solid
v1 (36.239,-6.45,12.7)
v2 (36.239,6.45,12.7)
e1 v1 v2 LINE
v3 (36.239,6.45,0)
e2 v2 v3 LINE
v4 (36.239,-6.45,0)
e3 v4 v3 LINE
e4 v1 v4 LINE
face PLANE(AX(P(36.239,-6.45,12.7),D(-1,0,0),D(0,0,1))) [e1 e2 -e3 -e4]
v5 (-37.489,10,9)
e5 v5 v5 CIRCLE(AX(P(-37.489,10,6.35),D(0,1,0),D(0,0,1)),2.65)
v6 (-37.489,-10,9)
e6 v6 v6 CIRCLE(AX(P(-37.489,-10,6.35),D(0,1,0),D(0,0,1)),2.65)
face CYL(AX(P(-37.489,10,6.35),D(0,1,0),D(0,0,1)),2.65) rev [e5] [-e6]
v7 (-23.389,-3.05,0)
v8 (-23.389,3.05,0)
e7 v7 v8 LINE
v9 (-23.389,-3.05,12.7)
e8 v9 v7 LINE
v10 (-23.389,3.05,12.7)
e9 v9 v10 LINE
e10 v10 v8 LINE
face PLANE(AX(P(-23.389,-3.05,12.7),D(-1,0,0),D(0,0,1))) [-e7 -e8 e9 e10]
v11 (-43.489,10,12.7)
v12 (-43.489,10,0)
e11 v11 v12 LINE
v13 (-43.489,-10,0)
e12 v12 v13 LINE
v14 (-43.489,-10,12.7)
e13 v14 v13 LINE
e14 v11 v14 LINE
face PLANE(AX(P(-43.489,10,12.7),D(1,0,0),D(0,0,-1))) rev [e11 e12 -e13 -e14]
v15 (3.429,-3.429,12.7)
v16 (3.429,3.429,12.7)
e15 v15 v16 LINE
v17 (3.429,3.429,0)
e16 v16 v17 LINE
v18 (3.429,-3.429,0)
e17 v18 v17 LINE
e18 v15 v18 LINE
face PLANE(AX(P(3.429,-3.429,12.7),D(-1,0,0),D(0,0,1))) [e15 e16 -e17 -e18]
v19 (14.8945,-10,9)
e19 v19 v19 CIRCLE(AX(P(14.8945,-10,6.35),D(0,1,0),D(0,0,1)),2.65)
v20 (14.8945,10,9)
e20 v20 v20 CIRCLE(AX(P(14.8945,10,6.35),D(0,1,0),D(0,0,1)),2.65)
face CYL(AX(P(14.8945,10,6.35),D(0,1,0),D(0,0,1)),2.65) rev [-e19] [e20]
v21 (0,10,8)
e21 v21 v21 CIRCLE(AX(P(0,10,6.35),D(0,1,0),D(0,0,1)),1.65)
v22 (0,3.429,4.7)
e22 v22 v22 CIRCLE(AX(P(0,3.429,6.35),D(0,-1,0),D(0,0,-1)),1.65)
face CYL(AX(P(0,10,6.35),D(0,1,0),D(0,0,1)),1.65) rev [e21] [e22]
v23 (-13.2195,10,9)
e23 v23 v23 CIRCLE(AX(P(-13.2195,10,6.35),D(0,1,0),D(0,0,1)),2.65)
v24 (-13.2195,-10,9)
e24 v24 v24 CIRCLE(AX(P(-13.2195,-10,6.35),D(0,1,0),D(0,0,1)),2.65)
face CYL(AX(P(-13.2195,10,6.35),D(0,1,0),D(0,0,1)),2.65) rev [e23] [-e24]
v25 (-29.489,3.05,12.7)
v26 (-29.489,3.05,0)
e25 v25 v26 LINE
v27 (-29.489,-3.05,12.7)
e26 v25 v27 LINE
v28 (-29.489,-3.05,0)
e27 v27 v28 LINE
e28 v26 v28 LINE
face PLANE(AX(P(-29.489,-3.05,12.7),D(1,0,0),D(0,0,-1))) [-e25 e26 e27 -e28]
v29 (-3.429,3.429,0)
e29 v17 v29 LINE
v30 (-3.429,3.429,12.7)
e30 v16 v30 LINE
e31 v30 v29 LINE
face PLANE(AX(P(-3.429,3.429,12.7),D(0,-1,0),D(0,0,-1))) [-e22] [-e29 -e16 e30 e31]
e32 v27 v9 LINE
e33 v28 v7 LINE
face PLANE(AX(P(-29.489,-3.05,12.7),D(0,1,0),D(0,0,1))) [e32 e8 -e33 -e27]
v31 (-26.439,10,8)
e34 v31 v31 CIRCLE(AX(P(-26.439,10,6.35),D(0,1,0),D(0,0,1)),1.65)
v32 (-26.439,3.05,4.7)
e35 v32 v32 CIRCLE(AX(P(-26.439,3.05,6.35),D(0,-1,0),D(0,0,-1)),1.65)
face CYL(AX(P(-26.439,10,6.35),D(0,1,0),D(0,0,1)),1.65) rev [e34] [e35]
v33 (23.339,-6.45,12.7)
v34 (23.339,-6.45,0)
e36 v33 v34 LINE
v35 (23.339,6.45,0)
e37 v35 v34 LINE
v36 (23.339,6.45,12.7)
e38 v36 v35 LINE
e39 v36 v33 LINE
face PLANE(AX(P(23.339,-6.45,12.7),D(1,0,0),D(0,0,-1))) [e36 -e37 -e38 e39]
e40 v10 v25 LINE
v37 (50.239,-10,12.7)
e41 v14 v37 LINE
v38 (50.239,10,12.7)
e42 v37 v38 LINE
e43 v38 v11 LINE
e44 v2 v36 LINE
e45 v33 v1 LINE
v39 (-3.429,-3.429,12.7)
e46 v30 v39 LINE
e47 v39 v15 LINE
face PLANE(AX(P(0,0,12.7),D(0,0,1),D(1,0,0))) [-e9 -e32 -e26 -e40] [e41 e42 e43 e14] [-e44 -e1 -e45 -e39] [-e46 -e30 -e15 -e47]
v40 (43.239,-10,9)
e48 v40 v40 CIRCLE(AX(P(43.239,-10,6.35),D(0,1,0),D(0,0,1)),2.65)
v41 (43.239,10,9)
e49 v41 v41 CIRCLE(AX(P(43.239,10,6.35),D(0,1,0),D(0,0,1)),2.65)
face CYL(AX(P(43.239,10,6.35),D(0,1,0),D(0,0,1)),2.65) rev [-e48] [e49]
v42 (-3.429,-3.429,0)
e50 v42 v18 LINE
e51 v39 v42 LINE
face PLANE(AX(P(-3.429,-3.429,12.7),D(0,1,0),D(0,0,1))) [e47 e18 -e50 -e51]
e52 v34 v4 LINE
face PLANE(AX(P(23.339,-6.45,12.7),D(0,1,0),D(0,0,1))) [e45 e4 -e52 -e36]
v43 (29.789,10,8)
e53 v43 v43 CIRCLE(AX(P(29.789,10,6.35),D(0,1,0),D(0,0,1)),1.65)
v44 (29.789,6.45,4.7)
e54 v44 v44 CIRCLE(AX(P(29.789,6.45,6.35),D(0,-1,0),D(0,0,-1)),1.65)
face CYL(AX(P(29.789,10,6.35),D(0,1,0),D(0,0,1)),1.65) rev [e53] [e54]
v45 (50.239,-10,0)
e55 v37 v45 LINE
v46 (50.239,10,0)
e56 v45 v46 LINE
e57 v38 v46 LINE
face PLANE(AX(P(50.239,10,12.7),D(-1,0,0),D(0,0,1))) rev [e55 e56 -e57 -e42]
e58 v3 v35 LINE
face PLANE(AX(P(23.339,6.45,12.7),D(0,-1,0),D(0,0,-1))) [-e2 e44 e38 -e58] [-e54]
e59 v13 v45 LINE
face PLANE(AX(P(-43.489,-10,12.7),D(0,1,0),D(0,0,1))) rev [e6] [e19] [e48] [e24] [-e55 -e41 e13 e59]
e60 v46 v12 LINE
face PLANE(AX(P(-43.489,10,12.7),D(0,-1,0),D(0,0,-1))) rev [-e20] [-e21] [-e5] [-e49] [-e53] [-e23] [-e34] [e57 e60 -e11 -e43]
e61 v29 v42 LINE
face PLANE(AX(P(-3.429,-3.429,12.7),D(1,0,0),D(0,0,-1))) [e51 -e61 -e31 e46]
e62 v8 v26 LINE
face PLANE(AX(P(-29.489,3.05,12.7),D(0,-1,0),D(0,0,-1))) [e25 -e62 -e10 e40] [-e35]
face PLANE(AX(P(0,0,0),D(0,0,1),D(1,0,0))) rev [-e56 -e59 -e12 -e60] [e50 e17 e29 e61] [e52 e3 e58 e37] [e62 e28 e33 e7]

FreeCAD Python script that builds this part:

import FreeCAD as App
import Part
import Sketcher

doc = App.newDocument("Part")
body = doc.addObject("PartDesign::Body", "Body")

sketch1 = body.newObject("Sketcher::SketchObject", "Sketch")
sketch1.AttachmentSupport = (doc.getObject("XY_Plane"), [""])
sketch1.MapMode = "FlatFace"
sketch1.addGeometry([
    Part.LineSegment(App.Vector(-43, 10, 0), App.Vector(-43, -10, 0)),
    Part.LineSegment(App.Vector(-43, -10, 0), App.Vector(50, -10, 0)),
    Part.LineSegment(App.Vector(50, -10, 0), App.Vector(50, 10, 0)),
    Part.LineSegment(App.Vector(50, 10, 0), App.Vector(-43, 10, 0)),
    Part.LineSegment(App.Vector(-23, -3, 0), App.Vector(-29, -3, 0)),
    Part.LineSegment(App.Vector(-29, -3, 0), App.Vector(-29, 3, 0)),
    Part.LineSegment(App.Vector(-29, 3, 0), App.Vector(-23, 3, 0)),
    Part.LineSegment(App.Vector(-23, 3, 0), App.Vector(-23, -3, 0)),
    Part.LineSegment(App.Vector(3, -3, 0), App.Vector(-3, -3, 0)),
    Part.LineSegment(App.Vector(-3, -3, 0), App.Vector(-3, 3, 0)),
    Part.LineSegment(App.Vector(-3, 3, 0), App.Vector(3, 3, 0)),
    Part.LineSegment(App.Vector(3, 3, 0), App.Vector(3, -3, 0)),
    Part.LineSegment(App.Vector(36, -6, 0), App.Vector(23, -6, 0)),
    Part.LineSegment(App.Vector(23, -6, 0), App.Vector(23, 6, 0)),
    Part.LineSegment(App.Vector(23, 6, 0), App.Vector(36, 6, 0)),
    Part.LineSegment(App.Vector(36, 6, 0), App.Vector(36, -6, 0)),
], False)
sketch1.addConstraint([
    Sketcher.Constraint("Coincident", 0, 2, 1, 1),
    Sketcher.Constraint("Coincident", 1, 2, 2, 1),
    Sketcher.Constraint("Coincident", 2, 2, 3, 1),
    Sketcher.Constraint("Coincident", 3, 2, 0, 1),
    Sketcher.Constraint("Coincident", 4, 2, 5, 1),
    Sketcher.Constraint("Coincident", 5, 2, 6, 1),
    Sketcher.Constraint("Coincident", 6, 2, 7, 1),
    Sketcher.Constraint("Coincident", 7, 2, 4, 1),
    Sketcher.Constraint("Coincident", 8, 2, 9, 1),
    Sketcher.Constraint("Coincident", 9, 2, 10, 1),
    Sketcher.Constraint("Coincident", 10, 2, 11, 1),
    Sketcher.Constraint("Coincident", 11, 2, 8, 1),
    Sketcher.Constraint("Coincident", 12, 2, 13, 1),
    Sketcher.Constraint("Coincident", 13, 2, 14, 1),
    Sketcher.Constraint("Coincident", 14, 2, 15, 1),
    Sketcher.Constraint("Coincident", 15, 2, 12, 1),
    Sketcher.Constraint("Vertical", 0),
    Sketcher.Constraint("Horizontal", 1),
    Sketcher.Constraint("Vertical", 2),
    Sketcher.Constraint("Horizontal", 3),
    Sketcher.Constraint("Horizontal", 4),
    Sketcher.Constraint("Vertical", 5),
    Sketcher.Constraint("Horizontal", 6),
    Sketcher.Constraint("Vertical", 7),
    Sketcher.Constraint("Horizontal", 8),
    Sketcher.Constraint("Vertical", 9),
    Sketcher.Constraint("Horizontal", 10),
    Sketcher.Constraint("Vertical", 11),
    Sketcher.Constraint("Horizontal", 12),
    Sketcher.Constraint("Vertical", 13),
    Sketcher.Constraint("Horizontal", 14),
    Sketcher.Constraint("Vertical", 15),
    Sketcher.Constraint("Symmetric", 8, 2, 10, 2, -1, 1),
    Sketcher.Constraint("Equal", 6, 5),
    Sketcher.Constraint("Equal", 10, 9),
    Sketcher.Constraint("Equal", 14, 13),
    Sketcher.Constraint("DistanceY", 0, 2, 0, 1, 20.0),
    Sketcher.Constraint("DistanceX", 4, 2, 4, 1, 6.1),
    Sketcher.Constraint("DistanceX", 12, 2, 12, 1, 12.9),
    Sketcher.Constraint("DistanceY", 0, 2, -1, 1, 10.0),
    Sketcher.Constraint("DistanceX", 0, 2, 4, 2, 14.0),
    Sketcher.Constraint("DistanceX", 14, 2, 2, 2, 14.0),
    Sketcher.Constraint("DistanceX", 1, 1, 1, 2, 93.728),
    Sketcher.Constraint("DistanceX", 8, 2, 8, 1, 6.858),
    Sketcher.Constraint("DistanceY", 4, 2, -1, 1, 3.05),
    Sketcher.Constraint("DistanceY", 12, 2, -1, 1, 6.45),
    Sketcher.Constraint("DistanceX", 7, 2, 8, 2, 19.96),
])
pad1 = body.newObject("PartDesign::Pad", "Pad")
pad1.Profile = sketch1
pad1.Length = 12.7

sketch2 = body.newObject("Sketcher::SketchObject", "Sketch001")
sketch2.AttachmentSupport = (doc.getObject("XZ_Plane"), [""])
sketch2.MapMode = "FlatFace"
sketch2.AttachmentOffset = App.Placement(App.Vector(0, 0, -10), App.Rotation())
sketch2.addGeometry([
    Part.Circle(App.Vector(-26.4, 6.3, 0), App.Vector(0, 0, 1), 1.6),
    Part.Circle(App.Vector(0, 6.3, 0), App.Vector(0, 0, 1), 1.6),
    Part.Circle(App.Vector(29.8, 6.3, 0), App.Vector(0, 0, 1), 1.6),
], False)
sketch2.addConstraint([
    Sketcher.Constraint("Equal", 0, 1),
    Sketcher.Constraint("Equal", 1, 2),
    Sketcher.Constraint("PointOnObject", 1, 3, -2),
    Sketcher.Constraint("Horizontal", 0, 3, 1, 3),
    Sketcher.Constraint("Horizontal", 1, 3, 2, 3),
    Sketcher.Constraint("Diameter", 0, 3.3),
    Sketcher.Constraint("DistanceY", -1, 1, 0, 3, 6.35),
    Sketcher.Constraint("DistanceX", 0, 3, -1, 1, 26.439),
    Sketcher.Constraint("DistanceX", -1, 1, 2, 3, 29.789),
])
doc.recompute()
hole = body.newObject("PartDesign::Hole", "Hole")
hole.Profile = sketch2
hole.ThreadType = "None"
hole.Diameter = 3.3
hole.DepthType = "Dimension"
hole.Depth = 6.95
hole.DrillPoint = "Flat"
hole.Reversed = True

sketch3 = body.newObject("Sketcher::SketchObject", "Sketch002")
sketch3.AttachmentSupport = (doc.getObject("XZ_Plane"), [""])
sketch3.MapMode = "FlatFace"
sketch3.AttachmentOffset = App.Placement(App.Vector(0, 0, -10), App.Rotation())
sketch3.addGeometry([
    Part.Circle(App.Vector(-37.5, 6.3, 0), App.Vector(0, 0, 1), 2.6),
    Part.Circle(App.Vector(-13.2, 6.3, 0), App.Vector(0, 0, 1), 2.6),
    Part.Circle(App.Vector(14.9, 6.3, 0), App.Vector(0, 0, 1), 2.6),
    Part.Circle(App.Vector(43.2, 6.3, 0), App.Vector(0, 0, 1), 2.6),
], False)
sketch3.addConstraint([
    Sketcher.Constraint("Equal", 0, 1),
    Sketcher.Constraint("Equal", 1, 2),
    Sketcher.Constraint("Equal", 2, 3),
    Sketcher.Constraint("Horizontal", 0, 3, 1, 3),
    Sketcher.Constraint("Horizontal", 1, 3, 2, 3),
    Sketcher.Constraint("Horizontal", 2, 3, 3, 3),
    Sketcher.Constraint("Diameter", 0, 5.3),
    Sketcher.Constraint("DistanceY", -1, 1, 0, 3, 6.35),
    Sketcher.Constraint("DistanceX", 0, 3, -1, 1, 37.489),
    Sketcher.Constraint("DistanceX", -1, 1, 3, 3, 43.239),
    Sketcher.Constraint("DistanceX", 1, 3, 2, 3, 28.114),
    Sketcher.Constraint("DistanceX", 1, 3, -1, 1, 13.2195),
])
doc.recompute()
hole2 = body.newObject("PartDesign::Hole", "Hole001")
hole2.Profile = sketch3
hole2.ThreadType = "None"
hole2.Diameter = 5.3
hole2.DepthType = "ThroughAll"
hole2.Reversed = True

doc.recompute()
